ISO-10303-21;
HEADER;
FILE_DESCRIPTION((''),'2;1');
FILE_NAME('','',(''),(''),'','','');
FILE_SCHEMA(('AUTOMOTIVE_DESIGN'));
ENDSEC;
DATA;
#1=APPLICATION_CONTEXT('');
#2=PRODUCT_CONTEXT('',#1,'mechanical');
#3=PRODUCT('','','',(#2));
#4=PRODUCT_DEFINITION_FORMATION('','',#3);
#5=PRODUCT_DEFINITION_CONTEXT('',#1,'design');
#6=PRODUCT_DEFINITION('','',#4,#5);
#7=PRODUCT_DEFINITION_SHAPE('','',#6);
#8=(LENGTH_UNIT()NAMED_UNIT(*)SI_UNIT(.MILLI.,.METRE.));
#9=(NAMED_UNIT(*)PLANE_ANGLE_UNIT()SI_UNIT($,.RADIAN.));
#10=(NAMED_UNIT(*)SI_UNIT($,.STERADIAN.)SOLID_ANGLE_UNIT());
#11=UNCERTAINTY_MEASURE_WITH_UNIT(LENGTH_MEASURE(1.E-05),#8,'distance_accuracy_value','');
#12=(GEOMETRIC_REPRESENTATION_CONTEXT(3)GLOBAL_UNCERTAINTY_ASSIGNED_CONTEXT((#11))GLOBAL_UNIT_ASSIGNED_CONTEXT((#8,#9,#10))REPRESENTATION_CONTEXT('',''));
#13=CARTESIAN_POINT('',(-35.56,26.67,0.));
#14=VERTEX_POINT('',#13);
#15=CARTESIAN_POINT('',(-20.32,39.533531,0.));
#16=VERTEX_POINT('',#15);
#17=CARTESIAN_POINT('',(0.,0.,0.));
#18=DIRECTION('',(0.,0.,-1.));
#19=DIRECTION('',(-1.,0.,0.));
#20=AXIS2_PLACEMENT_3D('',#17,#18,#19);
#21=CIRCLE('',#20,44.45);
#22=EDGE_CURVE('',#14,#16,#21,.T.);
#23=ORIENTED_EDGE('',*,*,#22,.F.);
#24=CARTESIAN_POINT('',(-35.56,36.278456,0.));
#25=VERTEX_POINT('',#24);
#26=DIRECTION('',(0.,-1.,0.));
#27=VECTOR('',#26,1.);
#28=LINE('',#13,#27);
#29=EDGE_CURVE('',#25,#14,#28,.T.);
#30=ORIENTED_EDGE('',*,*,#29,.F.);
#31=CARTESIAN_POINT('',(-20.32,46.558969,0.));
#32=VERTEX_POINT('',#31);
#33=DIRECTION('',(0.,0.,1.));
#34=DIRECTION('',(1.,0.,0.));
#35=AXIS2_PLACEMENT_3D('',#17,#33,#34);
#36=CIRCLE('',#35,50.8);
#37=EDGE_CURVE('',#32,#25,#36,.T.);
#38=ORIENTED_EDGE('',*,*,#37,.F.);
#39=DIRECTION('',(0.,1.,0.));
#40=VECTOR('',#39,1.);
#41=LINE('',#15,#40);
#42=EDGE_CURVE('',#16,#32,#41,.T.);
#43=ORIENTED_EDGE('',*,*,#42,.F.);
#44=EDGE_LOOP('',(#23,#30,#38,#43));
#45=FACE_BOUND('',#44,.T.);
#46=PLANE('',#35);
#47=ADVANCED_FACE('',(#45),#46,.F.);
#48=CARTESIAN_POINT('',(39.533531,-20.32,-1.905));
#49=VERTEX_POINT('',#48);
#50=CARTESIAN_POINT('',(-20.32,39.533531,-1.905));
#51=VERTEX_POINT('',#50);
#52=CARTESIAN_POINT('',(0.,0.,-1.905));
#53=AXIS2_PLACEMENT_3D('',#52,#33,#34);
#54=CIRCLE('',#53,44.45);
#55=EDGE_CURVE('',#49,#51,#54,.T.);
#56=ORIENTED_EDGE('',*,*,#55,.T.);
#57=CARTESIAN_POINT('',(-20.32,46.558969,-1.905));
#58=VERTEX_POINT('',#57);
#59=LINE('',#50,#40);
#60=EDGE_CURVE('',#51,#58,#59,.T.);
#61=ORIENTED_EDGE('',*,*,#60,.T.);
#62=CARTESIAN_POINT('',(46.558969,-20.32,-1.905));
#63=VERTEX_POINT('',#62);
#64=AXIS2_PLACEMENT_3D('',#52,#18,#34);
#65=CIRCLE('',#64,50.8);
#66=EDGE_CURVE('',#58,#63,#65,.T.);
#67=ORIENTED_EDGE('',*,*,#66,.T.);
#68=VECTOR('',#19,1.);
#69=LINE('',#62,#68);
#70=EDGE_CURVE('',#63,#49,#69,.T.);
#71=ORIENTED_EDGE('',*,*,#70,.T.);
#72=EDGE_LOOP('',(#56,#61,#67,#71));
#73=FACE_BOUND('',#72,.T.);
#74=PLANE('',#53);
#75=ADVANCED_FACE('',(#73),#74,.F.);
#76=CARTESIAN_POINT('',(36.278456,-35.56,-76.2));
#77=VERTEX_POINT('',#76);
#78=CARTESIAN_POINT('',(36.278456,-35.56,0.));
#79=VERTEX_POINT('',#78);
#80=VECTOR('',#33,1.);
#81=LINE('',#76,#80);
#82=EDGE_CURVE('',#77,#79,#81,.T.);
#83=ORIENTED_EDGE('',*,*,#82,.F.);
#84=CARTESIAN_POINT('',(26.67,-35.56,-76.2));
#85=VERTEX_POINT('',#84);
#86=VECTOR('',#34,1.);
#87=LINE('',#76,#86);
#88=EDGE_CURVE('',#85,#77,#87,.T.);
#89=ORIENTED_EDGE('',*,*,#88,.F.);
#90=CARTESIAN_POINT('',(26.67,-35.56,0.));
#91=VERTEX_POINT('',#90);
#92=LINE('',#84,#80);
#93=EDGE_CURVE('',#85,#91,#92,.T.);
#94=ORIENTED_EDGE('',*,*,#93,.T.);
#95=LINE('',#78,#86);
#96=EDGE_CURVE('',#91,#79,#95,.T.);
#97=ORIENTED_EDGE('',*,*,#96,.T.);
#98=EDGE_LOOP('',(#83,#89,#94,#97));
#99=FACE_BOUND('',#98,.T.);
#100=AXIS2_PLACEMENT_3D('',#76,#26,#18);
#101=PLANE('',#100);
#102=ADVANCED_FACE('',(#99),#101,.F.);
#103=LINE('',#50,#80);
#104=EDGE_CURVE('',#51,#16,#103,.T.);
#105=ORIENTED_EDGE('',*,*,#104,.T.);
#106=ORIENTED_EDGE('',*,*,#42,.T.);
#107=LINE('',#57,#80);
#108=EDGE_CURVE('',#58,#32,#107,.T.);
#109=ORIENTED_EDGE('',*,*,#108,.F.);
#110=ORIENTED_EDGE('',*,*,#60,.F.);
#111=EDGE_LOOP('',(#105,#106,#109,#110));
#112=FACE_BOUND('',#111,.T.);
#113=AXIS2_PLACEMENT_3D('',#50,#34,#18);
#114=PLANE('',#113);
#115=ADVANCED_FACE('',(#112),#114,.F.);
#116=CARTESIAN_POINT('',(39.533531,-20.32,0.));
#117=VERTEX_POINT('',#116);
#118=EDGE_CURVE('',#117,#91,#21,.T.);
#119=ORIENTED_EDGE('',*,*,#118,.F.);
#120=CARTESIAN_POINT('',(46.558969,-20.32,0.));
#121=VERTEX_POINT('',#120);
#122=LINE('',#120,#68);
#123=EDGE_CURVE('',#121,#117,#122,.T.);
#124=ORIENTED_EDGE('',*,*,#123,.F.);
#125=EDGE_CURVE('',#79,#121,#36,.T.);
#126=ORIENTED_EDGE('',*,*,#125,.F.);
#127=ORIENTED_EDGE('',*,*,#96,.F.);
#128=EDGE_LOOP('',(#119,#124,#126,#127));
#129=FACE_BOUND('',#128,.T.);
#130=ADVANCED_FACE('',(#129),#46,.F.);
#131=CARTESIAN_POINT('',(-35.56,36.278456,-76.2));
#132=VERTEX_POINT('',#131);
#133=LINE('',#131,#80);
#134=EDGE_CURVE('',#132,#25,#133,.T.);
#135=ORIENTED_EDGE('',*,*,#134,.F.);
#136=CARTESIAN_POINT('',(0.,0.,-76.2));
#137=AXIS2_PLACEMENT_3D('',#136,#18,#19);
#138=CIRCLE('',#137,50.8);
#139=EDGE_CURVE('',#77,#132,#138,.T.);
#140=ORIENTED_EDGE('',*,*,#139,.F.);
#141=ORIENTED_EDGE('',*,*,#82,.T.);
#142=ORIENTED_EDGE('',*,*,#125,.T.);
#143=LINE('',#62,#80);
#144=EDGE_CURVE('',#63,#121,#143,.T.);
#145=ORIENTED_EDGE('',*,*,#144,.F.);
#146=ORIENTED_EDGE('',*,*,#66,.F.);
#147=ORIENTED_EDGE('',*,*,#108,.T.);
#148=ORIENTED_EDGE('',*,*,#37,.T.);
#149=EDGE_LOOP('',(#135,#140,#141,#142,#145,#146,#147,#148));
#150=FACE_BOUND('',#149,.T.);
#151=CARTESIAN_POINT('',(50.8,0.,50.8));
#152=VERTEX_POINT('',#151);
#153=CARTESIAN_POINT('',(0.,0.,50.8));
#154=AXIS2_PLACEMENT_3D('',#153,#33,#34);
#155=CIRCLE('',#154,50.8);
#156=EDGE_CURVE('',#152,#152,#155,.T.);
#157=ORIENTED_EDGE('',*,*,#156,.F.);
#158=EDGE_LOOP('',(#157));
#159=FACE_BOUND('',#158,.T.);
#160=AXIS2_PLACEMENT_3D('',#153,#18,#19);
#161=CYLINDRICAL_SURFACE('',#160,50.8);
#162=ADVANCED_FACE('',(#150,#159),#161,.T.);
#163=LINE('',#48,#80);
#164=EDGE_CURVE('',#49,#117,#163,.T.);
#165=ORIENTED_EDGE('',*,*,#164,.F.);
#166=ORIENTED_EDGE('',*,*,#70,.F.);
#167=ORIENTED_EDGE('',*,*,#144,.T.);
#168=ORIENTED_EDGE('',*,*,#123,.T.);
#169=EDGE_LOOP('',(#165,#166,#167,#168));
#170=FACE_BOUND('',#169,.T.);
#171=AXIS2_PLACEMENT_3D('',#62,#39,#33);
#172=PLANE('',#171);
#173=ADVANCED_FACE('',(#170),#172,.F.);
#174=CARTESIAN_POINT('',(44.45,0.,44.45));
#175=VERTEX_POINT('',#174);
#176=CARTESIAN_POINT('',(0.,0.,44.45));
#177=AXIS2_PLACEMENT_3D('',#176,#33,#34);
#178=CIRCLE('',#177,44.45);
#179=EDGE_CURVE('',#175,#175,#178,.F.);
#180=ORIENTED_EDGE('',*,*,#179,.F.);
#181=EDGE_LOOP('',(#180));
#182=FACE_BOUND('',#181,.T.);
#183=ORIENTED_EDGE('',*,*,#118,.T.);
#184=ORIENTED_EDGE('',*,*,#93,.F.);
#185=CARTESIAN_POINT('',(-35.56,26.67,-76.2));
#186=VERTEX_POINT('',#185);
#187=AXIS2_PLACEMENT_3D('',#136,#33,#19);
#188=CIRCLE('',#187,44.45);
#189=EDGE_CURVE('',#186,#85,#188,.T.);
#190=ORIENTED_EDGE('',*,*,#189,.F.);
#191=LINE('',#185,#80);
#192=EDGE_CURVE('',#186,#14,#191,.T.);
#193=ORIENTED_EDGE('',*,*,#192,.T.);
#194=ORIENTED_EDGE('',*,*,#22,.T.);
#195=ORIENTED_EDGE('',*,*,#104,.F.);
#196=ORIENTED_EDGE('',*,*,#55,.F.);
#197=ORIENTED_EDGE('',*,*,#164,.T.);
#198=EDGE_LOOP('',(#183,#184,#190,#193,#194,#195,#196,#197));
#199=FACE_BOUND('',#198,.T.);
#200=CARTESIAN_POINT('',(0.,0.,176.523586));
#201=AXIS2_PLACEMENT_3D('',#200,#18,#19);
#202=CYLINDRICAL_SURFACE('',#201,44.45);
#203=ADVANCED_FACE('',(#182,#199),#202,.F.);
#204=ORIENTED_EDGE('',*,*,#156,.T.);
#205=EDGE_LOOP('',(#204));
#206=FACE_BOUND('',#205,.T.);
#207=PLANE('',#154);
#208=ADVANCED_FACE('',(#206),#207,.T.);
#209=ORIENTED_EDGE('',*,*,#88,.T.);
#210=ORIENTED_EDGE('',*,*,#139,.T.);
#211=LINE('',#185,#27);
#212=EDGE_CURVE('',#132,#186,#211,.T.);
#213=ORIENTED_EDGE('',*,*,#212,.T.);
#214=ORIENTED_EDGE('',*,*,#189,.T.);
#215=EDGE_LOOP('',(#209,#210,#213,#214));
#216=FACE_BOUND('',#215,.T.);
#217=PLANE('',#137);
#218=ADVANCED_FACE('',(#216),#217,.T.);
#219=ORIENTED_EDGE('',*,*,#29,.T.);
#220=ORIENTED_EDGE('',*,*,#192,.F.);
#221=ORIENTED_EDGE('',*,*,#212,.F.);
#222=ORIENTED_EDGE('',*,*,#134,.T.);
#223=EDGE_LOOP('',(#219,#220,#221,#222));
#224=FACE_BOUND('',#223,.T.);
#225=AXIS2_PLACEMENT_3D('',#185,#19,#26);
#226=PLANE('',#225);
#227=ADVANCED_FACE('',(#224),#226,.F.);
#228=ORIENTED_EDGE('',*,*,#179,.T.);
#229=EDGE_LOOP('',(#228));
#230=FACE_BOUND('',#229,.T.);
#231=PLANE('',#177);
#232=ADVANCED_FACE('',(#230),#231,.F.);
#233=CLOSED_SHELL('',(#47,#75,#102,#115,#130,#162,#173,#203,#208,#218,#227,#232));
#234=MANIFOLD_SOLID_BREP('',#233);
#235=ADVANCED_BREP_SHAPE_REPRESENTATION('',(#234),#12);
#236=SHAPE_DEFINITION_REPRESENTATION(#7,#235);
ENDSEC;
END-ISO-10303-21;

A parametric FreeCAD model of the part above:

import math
import FreeCAD as App
import Part
import Sketcher

V = App.Vector
Q = App.Units.Quantity

doc = App.newDocument("Part")
params = doc.addObject("Spreadsheet::Sheet", "Params")
for row, (alias, value) in enumerate([
    ("sketch1_diameter", "4 in"),
    ("pad1_length", "2 in"),
    ("sketch2_diameter", "3.5 in"),
    ("pocket1_length", "1.75 in"),
    ("sketch3_radius", "2 in"),
    ("sketch3_radius2", "1.75 in"),
    ("pad2_length", "3 in"),
    ("sketch4_radius", "2 in"),
    ("sketch4_radius2", "1.75 in"),
    ("pad3_length", "0.075 in"),
], start=1):
    params.set(f"A{row}", alias)
    params.set(f"B{row}", "=" + value)
    params.setAlias(f"B{row}", alias)

body = doc.addObject("PartDesign::Body", "Body")

# Sketch on XY plane
sketch1 = body.newObject("Sketcher::SketchObject", "Sketch")
sketch1.AttachmentSupport = (doc.getObject("XY_Plane"), [""])
sketch1.MapMode = "FlatFace"
sketch1.addGeometry(Part.Circle(V(0, 0, 0), V(0, 0, 1), 51), False)
sketch1.addConstraint(Sketcher.Constraint("Coincident", 0, 3, -1, 1))
sketch1.addConstraint(Sketcher.Constraint("Diameter", 0, Q("4 in")))
sketch1.setExpression("Constraints[1]", "Params.sketch1_diameter")
pad1 = body.newObject("PartDesign::Pad", "Pad")
pad1.Profile = sketch1
pad1.setExpression("Length", "Params.pad1_length")

# Sketch on XY plane
sketch2 = body.newObject("Sketcher::SketchObject", "Sketch001")
sketch2.AttachmentSupport = (doc.getObject("XY_Plane"), [""])
sketch2.MapMode = "FlatFace"
sketch2.addGeometry(Part.Circle(V(0, 0, 0), V(0, 0, 1), 44), False)
sketch2.addConstraint(Sketcher.Constraint("Coincident", 0, 3, -1, 1))
sketch2.addConstraint(Sketcher.Constraint("Diameter", 0, Q("3.5 in")))
sketch2.setExpression("Constraints[1]", "Params.sketch2_diameter")
pocket1 = body.newObject("PartDesign::Pocket", "Pocket")
pocket1.Profile = sketch2
pocket1.setExpression("Length", "Params.pocket1_length")
pocket1.Reversed = True

# Sketch on XY plane
sketch3 = body.newObject("Sketcher::SketchObject", "Sketch002")
sketch3.AttachmentSupport = (doc.getObject("XY_Plane"), [""])
sketch3.MapMode = "FlatFace"
sketch3.AttachmentOffset = App.Placement(V(0, 0, -3 * 25.4), App.Rotation())
sketch3.addGeometry(Part.LineSegment(V(27, -36, 0), V(36, -36, 0)), False)
sketch3.addGeometry(Part.ArcOfCircle(Part.Circle(V(0, 0, 0), V(0, 0, 1), 51), math.radians(134), math.radians(316)), False)
sketch3.addGeometry(Part.LineSegment(V(-36, 36, 0), V(-36, 27, 0)), False)
sketch3.addGeometry(Part.ArcOfCircle(Part.Circle(V(0, 0, 0), V(0, 0, 1), 44), math.radians(143), math.radians(307)), False)
sketch3.addConstraint(Sketcher.Constraint("Coincident", 0, 2, 1, 2))
sketch3.addConstraint(Sketcher.Constraint("Coincident", 1, 1, 2, 1))
sketch3.addConstraint(Sketcher.Constraint("Coincident", 2, 2, 3, 1))
sketch3.addConstraint(Sketcher.Constraint("Coincident", 3, 2, 0, 1))
sketch3.addConstraint(Sketcher.Constraint("Horizontal", 0))
sketch3.addConstraint(Sketcher.Constraint("Vertical", 2))
sketch3.addConstraint(Sketcher.Constraint("Coincident", 1, 3, -1, 1))
sketch3.addConstraint(Sketcher.Constraint("Coincident", 3, 3, -1, 1))
sketch3.addConstraint(Sketcher.Constraint("Equal", 0, 2))
sketch3.addConstraint(Sketcher.Constraint("Radius", 1, Q("2 in")))
sketch3.addConstraint(Sketcher.Constraint("Radius", 3, Q("1.75 in")))
sketch3.addConstraint(Sketcher.Constraint("DistanceY", 0, 2, -1, 1, Q("1.4 in")))
sketch3.setExpression("Constraints[9]", "Params.sketch3_radius")
sketch3.setExpression("Constraints[10]", "Params.sketch3_radius2")
pad2 = body.newObject("PartDesign::Pad", "Pad001")
pad2.Profile = sketch3
pad2.setExpression("Length", "Params.pad2_length")

# Sketch on XY plane
sketch4 = body.newObject("Sketcher::SketchObject", "Sketch003")
sketch4.AttachmentSupport = (doc.getObject("XY_Plane"), [""])
sketch4.MapMode = "FlatFace"
sketch4.AttachmentOffset = App.Placement(V(0, 0, -0.075 * 25.4), App.Rotation())
sketch4.addGeometry(Part.LineSegment(V(47, -20, 0), V(40, -20, 0)), False)
sketch4.addGeometry(Part.ArcOfCircle(Part.Circle(V(0, 0, 0), V(0, 0, 1), 44), math.radians(-27), math.radians(117)), False)
sketch4.addGeometry(Part.LineSegment(V(-20, 40, 0), V(-20, 47, 0)), False)
sketch4.addGeometry(Part.ArcOfCircle(Part.Circle(V(0, 0, 0), V(0, 0, 1), 51), math.radians(-24), math.radians(114)), False)
sketch4.addConstraint(Sketcher.Constraint("Coincident", 0, 2, 1, 1))
sketch4.addConstraint(Sketcher.Constraint("Coincident", 1, 2, 2, 1))
sketch4.addConstraint(Sketcher.Constraint("Coincident", 2, 2, 3, 2))
sketch4.addConstraint(Sketcher.Constraint("Coincident", 3, 1, 0, 1))
sketch4.addConstraint(Sketcher.Constraint("Horizontal", 0))
sketch4.addConstraint(Sketcher.Constraint("Vertical", 2))
sketch4.addConstraint(Sketcher.Constraint("Coincident", 1, 3, -1, 1))
sketch4.addConstraint(Sketcher.Constraint("Coincident", 3, 3, -1, 1))
sketch4.addConstraint(Sketcher.Constraint("Equal", 0, 2))
sketch4.addConstraint(Sketcher.Constraint("Radius", 3, Q("2 in")))
sketch4.addConstraint(Sketcher.Constraint("Radius", 1, Q("1.75 in")))
sketch4.addConstraint(Sketcher.Constraint("DistanceY", 0, 2, -1, 1, Q("0.8 in")))
sketch4.setExpression("Constraints[9]", "Params.sketch4_radius")
sketch4.setExpression("Constraints[10]", "Params.sketch4_radius2")
pad3 = body.newObject("PartDesign::Pad", "Pad002")
pad3.Profile = sketch4
pad3.setExpression("Length", "Params.pad3_length")

doc.recompute()
